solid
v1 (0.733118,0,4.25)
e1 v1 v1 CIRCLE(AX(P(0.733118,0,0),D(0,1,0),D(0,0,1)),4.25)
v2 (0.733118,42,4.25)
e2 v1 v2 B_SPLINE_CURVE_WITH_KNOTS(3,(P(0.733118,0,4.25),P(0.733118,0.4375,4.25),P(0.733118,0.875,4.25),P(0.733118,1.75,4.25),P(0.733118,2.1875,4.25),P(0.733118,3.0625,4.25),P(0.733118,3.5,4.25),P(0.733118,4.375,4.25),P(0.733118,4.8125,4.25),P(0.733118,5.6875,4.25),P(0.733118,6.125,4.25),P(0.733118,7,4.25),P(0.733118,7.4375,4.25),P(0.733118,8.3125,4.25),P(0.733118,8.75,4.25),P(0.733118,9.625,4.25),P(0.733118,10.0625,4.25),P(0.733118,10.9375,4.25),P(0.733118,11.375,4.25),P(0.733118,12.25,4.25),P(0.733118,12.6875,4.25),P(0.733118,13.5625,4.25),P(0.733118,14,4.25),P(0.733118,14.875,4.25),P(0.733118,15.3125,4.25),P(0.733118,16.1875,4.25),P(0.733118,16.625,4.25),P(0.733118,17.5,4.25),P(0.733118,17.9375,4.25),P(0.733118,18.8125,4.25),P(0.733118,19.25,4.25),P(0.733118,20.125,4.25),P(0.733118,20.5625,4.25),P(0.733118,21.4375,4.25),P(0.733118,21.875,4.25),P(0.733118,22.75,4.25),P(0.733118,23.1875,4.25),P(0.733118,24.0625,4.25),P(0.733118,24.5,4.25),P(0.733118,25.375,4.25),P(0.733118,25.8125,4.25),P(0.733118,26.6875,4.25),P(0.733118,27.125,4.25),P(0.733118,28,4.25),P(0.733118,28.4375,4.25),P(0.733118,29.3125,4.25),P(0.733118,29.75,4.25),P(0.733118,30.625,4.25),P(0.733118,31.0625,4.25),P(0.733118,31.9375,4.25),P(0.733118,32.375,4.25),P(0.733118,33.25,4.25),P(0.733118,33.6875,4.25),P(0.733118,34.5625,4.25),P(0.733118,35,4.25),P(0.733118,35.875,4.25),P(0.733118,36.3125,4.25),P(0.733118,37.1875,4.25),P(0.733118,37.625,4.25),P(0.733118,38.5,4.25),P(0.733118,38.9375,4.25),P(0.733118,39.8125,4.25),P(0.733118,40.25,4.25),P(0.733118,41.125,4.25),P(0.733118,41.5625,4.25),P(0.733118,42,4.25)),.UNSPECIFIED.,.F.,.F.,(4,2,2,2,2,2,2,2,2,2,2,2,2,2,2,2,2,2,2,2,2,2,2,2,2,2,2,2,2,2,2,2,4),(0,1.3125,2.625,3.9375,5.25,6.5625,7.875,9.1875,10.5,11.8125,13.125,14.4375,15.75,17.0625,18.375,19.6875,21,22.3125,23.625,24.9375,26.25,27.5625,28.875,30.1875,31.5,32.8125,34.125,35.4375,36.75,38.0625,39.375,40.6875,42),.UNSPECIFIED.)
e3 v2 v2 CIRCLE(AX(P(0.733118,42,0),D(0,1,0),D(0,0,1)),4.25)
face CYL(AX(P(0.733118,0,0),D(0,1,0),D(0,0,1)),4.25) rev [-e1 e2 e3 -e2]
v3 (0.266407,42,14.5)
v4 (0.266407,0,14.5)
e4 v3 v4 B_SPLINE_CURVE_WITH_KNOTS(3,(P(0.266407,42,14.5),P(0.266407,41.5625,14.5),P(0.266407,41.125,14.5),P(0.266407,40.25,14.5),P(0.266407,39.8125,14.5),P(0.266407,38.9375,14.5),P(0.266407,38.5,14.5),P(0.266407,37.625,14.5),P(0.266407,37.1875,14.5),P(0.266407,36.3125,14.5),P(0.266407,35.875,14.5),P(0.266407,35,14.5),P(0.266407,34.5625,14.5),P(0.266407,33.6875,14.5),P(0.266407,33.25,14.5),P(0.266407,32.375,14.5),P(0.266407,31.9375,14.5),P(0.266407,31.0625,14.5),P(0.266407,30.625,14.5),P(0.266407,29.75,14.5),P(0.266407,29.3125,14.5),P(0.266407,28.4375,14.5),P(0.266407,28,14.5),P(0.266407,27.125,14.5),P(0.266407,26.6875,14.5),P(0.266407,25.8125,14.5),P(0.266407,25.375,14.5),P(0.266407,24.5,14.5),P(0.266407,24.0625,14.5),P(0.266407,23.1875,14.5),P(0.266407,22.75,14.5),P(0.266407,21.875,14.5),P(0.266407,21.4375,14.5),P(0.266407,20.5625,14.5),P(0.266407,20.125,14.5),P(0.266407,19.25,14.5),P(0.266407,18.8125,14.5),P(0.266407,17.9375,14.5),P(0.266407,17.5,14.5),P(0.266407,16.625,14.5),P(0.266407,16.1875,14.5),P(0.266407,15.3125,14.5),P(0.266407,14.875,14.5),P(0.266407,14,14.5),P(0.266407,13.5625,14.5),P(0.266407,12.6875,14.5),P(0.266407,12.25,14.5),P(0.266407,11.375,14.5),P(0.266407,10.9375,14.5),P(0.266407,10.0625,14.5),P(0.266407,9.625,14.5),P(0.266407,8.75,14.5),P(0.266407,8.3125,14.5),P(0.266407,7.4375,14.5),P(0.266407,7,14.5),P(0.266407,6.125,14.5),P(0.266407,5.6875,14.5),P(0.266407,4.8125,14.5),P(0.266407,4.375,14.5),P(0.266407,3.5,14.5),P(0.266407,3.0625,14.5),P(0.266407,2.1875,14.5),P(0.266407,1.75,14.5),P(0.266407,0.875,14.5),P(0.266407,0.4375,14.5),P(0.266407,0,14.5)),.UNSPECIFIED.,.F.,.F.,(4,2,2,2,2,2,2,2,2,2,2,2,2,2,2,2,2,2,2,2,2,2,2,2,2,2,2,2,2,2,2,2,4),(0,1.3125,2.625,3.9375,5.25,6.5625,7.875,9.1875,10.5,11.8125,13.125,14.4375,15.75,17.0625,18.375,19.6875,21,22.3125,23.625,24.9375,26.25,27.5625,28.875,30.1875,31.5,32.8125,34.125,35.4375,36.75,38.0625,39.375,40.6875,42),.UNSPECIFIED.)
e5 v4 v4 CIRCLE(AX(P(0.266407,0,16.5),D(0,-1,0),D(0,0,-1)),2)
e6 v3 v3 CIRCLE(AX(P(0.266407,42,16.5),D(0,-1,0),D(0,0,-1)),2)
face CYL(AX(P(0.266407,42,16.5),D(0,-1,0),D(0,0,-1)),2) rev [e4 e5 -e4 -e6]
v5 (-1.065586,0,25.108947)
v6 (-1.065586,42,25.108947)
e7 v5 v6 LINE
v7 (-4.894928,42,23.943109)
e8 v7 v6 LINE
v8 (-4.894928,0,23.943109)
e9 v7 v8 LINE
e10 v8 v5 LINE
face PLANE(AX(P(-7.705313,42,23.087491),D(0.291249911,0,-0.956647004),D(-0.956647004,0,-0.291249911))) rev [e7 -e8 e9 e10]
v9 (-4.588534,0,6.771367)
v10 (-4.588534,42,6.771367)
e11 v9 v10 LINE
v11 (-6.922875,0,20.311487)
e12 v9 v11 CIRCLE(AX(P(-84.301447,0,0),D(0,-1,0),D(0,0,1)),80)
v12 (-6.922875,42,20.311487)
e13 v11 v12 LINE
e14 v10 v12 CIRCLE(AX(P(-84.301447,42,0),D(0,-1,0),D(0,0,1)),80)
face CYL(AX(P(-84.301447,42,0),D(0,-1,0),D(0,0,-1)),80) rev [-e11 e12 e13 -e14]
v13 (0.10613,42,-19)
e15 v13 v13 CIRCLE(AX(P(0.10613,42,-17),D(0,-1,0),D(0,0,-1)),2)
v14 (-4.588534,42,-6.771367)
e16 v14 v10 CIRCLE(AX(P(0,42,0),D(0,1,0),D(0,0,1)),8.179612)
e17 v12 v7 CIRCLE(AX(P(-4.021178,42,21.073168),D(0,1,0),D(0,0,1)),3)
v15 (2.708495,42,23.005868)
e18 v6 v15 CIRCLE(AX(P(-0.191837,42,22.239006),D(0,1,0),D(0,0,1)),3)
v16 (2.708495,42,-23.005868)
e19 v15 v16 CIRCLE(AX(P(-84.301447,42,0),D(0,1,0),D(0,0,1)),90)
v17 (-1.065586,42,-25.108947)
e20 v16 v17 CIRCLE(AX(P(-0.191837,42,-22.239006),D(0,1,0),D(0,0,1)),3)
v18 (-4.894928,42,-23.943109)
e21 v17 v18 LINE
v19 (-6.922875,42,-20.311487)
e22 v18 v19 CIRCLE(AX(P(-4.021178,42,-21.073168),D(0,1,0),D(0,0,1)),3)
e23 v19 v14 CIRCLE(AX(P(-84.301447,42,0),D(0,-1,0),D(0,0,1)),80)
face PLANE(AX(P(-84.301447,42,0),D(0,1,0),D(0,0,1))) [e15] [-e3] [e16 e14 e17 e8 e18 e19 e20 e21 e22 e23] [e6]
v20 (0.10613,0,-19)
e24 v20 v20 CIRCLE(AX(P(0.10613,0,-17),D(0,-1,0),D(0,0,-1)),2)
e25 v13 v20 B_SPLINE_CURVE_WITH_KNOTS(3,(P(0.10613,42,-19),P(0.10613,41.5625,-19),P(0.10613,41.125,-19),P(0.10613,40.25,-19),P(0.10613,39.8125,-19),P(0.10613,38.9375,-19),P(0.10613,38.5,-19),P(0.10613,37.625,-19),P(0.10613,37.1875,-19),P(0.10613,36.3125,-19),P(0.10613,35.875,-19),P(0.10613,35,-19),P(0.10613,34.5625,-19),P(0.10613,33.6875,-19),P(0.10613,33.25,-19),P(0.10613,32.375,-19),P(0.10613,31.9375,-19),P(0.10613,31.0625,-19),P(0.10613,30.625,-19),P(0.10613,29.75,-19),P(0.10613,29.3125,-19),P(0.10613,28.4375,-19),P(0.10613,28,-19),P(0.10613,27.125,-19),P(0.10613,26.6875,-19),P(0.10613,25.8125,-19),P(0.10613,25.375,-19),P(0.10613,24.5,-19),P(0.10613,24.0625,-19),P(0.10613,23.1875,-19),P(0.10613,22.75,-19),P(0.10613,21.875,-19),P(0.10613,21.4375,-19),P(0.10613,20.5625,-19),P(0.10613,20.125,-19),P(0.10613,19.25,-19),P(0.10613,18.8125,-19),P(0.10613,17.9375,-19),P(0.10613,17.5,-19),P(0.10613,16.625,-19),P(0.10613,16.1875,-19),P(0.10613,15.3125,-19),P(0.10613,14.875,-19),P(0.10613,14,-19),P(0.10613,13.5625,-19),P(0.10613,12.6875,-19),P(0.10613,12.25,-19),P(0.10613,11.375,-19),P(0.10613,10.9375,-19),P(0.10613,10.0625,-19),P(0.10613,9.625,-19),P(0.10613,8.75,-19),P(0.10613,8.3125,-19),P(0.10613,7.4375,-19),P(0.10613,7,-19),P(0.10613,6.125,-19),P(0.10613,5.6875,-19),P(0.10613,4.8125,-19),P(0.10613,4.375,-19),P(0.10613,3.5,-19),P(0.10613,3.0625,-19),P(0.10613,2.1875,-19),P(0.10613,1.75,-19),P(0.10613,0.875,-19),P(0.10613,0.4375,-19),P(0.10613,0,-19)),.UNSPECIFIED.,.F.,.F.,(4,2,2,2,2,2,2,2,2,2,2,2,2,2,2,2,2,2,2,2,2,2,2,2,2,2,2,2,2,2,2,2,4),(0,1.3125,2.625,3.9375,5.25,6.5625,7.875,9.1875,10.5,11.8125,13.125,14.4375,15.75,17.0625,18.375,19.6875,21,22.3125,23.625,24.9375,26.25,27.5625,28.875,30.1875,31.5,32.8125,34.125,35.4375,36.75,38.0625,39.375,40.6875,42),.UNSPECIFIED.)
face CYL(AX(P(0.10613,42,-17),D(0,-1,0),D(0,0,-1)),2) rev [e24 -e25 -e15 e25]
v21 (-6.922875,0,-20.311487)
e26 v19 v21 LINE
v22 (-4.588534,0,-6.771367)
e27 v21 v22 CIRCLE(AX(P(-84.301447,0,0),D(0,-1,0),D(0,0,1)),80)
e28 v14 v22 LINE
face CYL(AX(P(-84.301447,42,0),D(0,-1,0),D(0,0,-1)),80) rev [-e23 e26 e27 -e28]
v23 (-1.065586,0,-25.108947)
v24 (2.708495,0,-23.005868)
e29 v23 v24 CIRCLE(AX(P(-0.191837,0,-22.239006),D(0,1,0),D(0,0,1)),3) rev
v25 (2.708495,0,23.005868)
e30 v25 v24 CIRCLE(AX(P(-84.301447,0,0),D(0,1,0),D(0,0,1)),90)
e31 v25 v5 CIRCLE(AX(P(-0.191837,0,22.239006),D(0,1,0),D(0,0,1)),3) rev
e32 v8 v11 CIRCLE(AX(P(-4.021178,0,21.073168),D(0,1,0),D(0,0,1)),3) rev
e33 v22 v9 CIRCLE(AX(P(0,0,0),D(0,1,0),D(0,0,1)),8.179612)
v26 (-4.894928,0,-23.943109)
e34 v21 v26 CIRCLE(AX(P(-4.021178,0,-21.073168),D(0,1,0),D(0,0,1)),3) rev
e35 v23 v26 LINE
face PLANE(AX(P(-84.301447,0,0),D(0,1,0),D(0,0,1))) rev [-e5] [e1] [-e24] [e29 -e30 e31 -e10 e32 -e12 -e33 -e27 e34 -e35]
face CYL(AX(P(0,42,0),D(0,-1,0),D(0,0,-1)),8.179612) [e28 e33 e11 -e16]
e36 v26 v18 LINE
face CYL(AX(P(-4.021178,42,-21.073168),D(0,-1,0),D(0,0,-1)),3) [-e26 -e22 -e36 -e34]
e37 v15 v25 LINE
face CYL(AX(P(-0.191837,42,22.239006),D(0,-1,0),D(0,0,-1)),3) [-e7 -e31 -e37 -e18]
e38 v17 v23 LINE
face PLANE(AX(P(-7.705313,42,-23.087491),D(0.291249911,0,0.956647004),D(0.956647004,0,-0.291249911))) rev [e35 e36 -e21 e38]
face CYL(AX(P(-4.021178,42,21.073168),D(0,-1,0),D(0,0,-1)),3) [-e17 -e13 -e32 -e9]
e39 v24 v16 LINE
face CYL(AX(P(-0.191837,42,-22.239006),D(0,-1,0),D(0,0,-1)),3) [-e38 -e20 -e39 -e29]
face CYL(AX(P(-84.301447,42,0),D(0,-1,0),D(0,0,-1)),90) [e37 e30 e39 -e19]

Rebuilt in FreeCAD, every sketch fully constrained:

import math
import FreeCAD as App
import Part
import Sketcher


def edges_at(feature, points):
    """Names of the edges that pass closest to the given points."""
    edges = feature.Shape.Edges
    near = lambda p: min(range(len(edges)), key=lambda i: edges[i].distToShape(Part.Vertex(*p))[0])
    return sorted({f"Edge{near(p) + 1}" for p in points})

doc = App.newDocument("Part")
body = doc.addObject("PartDesign::Body", "Body")

# Sketch on XZ plane
sketch1 = body.newObject("Sketcher::SketchObject", "Sketch")
sketch1.AttachmentSupport = (doc.getObject("XZ_Plane"), [""])
sketch1.MapMode = "FlatFace"
sketch1.addGeometry(Part.LineSegment(App.Vector(1.861189, -26, 0), App.Vector(-7.705313, -23.087491, 0)), False)
sketch1.addGeometry(Part.ArcOfCircle(Part.Circle(App.Vector(-84.301447, 0, 0), App.Vector(0, 0, 1), 80), math.radians(-16.773778), math.radians(16.773778)), False)
sketch1.addGeometry(Part.LineSegment(App.Vector(-7.705313, 23.087491, 0), App.Vector(1.861189, 26, 0)), False)
sketch1.addGeometry(Part.ArcOfCircle(Part.Circle(App.Vector(-84.301447, 0, 0), App.Vector(0, 0, 1), 90), math.radians(-16.791447), math.radians(16.791447)), False)
sketch1.addConstraint(Sketcher.Constraint("Coincident", 0, 2, 1, 1))
sketch1.addConstraint(Sketcher.Constraint("Coincident", 1, 2, 2, 1))
sketch1.addConstraint(Sketcher.Constraint("Coincident", 2, 2, 3, 2))
sketch1.addConstraint(Sketcher.Constraint("Coincident", 3, 1, 0, 1))
sketch1.addConstraint(Sketcher.Constraint("Coincident", 3, 3, 1, 3))
sketch1.addConstraint(Sketcher.Constraint("Symmetric", 0, 2, 1, 2, -1))
sketch1.addConstraint(Sketcher.Constraint("Vertical", 2, 2, 3, 1))
sketch1.addConstraint(Sketcher.Constraint("Radius", 1, 80.0))
sketch1.addConstraint(Sketcher.Constraint("Radius", 3, 90.0))
sketch1.addConstraint(Sketcher.Constraint("DistanceY", -1, 1, 2, 2, 26.0))
sketch1.addConstraint(Sketcher.Constraint("DistanceY", 0, 2, -1, 1, 23.087491))
sketch1.addConstraint(Sketcher.Constraint("DistanceX", -1, 1, 2, 2, 1.861189))
pad1 = body.newObject("PartDesign::Pad", "Pad")
pad1.Profile = sketch1
pad1.Length = 42
pad1.Reversed = True
doc.recompute()

fillet = body.newObject("PartDesign::Fillet", "Fillet")
fillet.Base = (pad1, edges_at(pad1, [
    (-7.705, 21, -23.087),
    (1.861, 21, -26),
    (1.861, 21, 26),
    (-7.705, 21, 23.087),
]))
fillet.Radius = 3

# Sketch on XZ plane
sketch2 = body.newObject("Sketcher::SketchObject", "Sketch001")
sketch2.AttachmentSupport = (doc.getObject("XZ_Plane"), [""])
sketch2.MapMode = "FlatFace"
sketch2.AttachmentOffset = App.Placement(App.Vector(0, 0, -42), App.Rotation())
sketch2.addGeometry(Part.Circle(App.Vector(0.733118, 0, 0), App.Vector(0, 0, 1), 4.25), False)
sketch2.addConstraint(Sketcher.Constraint("PointOnObject", 0, 3, -1))
sketch2.addConstraint(Sketcher.Constraint("Diameter", 0, 8.5))
sketch2.addConstraint(Sketcher.Constraint("DistanceX", -1, 1, 0, 3, 0.733118))
pocket1 = body.newObject("PartDesign::Pocket", "Pocket")
pocket1.Profile = sketch2
pocket1.Type = "ThroughAll"
pocket1.Reversed = True

# Sketch on XZ plane
sketch3 = body.newObject("Sketcher::SketchObject", "Sketch002")
sketch3.AttachmentSupport = (doc.getObject("XZ_Plane"), [""])
sketch3.MapMode = "FlatFace"
sketch3.addGeometry(Part.LineSegment(App.Vector(-3.757375, 7.265548, 0), App.Vector(-3.757375, -7.265548, 0)), False)
sketch3.addGeometry(Part.ArcOfCircle(Part.Circle(App.Vector(0, 0, 0), App.Vector(0, 0, 1), 8.179612), math.radians(117.345723), math.radians(242.654277)), False)
sketch3.addConstraint(Sketcher.Constraint("Coincident", 0, 1, 1, 1))
sketch3.addConstraint(Sketcher.Constraint("Coincident", 1, 2, 0, 2))
sketch3.addConstraint(Sketcher.Constraint("Vertical", 0))
sketch3.addConstraint(Sketcher.Constraint("Coincident", 1, 3, -1, 1))
sketch3.addConstraint(Sketcher.Constraint("Radius", 1, 8.179612))
sketch3.addConstraint(Sketcher.Constraint("DistanceY", 0, 2, 0, 1, 14.531096))
pad2 = body.newObject("PartDesign::Pad", "Pad001")
pad2.Profile = sketch3
pad2.Length = 42
pad2.Reversed = True

# Sketch on XZ plane
sketch4 = body.newObject("Sketcher::SketchObject", "Sketch003")
sketch4.AttachmentSupport = (doc.getObject("XZ_Plane"), [""])
sketch4.MapMode = "FlatFace"
sketch4.addGeometry(Part.ArcOfCircle(Part.Circle(App.Vector(0.266407, 16.5, 0), App.Vector(0, 0, 1), 2), math.radians(0), math.radians(108.543615)), False)
sketch4.addGeometry(Part.ArcOfCircle(Part.Circle(App.Vector(0.266407, 16.5, 0), App.Vector(0, 0, 1), 2), math.radians(108.543615), math.radians(286.455184)), False)
sketch4.addGeometry(Part.ArcOfCircle(Part.Circle(App.Vector(0.266407, 16.5, 0), App.Vector(0, 0, 1), 2), math.radians(-73.544816), math.radians(0)), False)
sketch4.addGeometry(Part.ArcOfCircle(Part.Circle(App.Vector(0.10613, -17, 0), App.Vector(0, 0, 1), 2), math.radians(72.996568), math.radians(250.908137)), False)
sketch4.addGeometry(Part.ArcOfCircle(Part.Circle(App.Vector(0.10613, -17, 0), App.Vector(0, 0, 1), 2), math.radians(-109.091863), math.radians(0)), False)
sketch4.addGeometry(Part.ArcOfCircle(Part.Circle(App.Vector(0.10613, -17, 0), App.Vector(0, 0, 1), 2), math.radians(0), math.radians(72.996568)), False)
sketch4.addConstraint(Sketcher.Constraint("Tangent", 0, 2, 1, 1))
sketch4.addConstraint(Sketcher.Constraint("Tangent", 1, 2, 2, 1))
sketch4.addConstraint(Sketcher.Constraint("Tangent", 2, 2, 0, 1))
sketch4.addConstraint(Sketcher.Constraint("Tangent", 3, 2, 4, 1))
sketch4.addConstraint(Sketcher.Constraint("Tangent", 4, 2, 5, 1))
sketch4.addConstraint(Sketcher.Constraint("Tangent", 5, 2, 3, 1))
sketch4.addConstraint(Sketcher.Constraint("Equal", 2, 3))
sketch4.addConstraint(Sketcher.Constraint("Horizontal", 1, 3, 2, 2))
sketch4.addConstraint(Sketcher.Constraint("Horizontal", 5, 3, 4, 2))
sketch4.addConstraint(Sketcher.Constraint("Radius", 0, 2.0))
sketch4.addConstraint(Sketcher.Constraint("DistanceY", 3, 3, -1, 1, 17.0))
sketch4.addConstraint(Sketcher.Constraint("DistanceY", -1, 1, 0, 3, 16.5))
sketch4.addConstraint(Sketcher.Constraint("DistanceX", -1, 1, 3, 3, 0.10613))
sketch4.addConstraint(Sketcher.Constraint("DistanceY", 3, 2, -1, 1, 18.889991))
sketch4.addConstraint(Sketcher.Constraint("DistanceX", 2, 3, 1, 2, 0.566531))
sketch4.addConstraint(Sketcher.Constraint("DistanceX", 4, 3, 1, 2, 0.726808))
sketch4.addConstraint(Sketcher.Constraint("DistanceX", 0, 2, -1, 1, 0.369646))
sketch4.addConstraint(Sketcher.Constraint("DistanceX", -1, 1, 5, 2, 0.690988))
pocket2 = body.newObject("PartDesign::Pocket", "Pocket001")
pocket2.Profile = sketch4
pocket2.Type = "ThroughAll"

doc.recompute()
